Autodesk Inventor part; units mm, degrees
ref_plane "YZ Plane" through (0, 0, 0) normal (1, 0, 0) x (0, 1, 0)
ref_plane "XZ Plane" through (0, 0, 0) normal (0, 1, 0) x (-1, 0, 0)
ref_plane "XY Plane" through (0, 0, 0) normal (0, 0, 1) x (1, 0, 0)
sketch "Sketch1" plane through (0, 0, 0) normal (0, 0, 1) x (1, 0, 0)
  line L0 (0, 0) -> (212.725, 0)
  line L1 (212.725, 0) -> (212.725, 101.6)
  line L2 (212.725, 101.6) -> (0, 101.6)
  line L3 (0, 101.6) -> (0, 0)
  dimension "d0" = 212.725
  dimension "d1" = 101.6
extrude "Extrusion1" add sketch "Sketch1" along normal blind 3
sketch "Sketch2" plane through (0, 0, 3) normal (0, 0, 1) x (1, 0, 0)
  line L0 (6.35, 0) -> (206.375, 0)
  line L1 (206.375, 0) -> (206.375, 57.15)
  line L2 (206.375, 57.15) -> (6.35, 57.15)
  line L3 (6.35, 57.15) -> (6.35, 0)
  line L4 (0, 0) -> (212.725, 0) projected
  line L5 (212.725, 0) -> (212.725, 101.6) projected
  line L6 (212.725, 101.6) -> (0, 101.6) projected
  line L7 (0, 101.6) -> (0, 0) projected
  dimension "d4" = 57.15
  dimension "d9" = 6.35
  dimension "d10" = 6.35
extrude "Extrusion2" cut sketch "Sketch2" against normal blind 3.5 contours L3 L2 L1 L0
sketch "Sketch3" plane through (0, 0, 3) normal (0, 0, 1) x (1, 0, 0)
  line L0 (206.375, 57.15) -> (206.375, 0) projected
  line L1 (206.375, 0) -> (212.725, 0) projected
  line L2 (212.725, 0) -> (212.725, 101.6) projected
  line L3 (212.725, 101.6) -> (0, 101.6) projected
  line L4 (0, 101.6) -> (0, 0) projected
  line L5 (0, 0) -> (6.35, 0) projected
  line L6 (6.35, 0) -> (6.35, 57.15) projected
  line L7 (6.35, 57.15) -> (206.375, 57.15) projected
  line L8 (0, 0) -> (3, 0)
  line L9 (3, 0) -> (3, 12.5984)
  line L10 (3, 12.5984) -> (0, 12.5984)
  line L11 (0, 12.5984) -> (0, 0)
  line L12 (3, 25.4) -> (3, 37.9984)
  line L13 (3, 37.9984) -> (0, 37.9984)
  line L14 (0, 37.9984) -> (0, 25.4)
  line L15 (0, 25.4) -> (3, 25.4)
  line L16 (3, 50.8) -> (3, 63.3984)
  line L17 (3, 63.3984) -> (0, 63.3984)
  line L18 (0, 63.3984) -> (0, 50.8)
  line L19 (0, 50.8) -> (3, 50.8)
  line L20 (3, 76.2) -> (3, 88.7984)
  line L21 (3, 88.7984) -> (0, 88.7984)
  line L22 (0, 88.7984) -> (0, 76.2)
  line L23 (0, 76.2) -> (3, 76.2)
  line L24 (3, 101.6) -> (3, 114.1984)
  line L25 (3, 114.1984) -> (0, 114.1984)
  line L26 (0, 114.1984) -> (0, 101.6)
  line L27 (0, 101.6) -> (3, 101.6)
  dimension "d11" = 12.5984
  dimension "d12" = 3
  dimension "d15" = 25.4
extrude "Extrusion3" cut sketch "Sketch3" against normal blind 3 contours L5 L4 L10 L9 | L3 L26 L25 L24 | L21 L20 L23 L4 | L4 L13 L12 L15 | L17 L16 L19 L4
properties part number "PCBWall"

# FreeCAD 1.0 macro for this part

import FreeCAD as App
import Part
import Sketcher
from FreeCAD import Vector
Q = App.Units.Quantity

doc = App.newDocument("Part")
params = doc.addObject("Spreadsheet::Sheet", "Params")
for row, (alias, value) in enumerate([
    ("sketch1_height", "4 in"),
    ("sketch1_width", "8.375 in"),
    ("pad1_length", "0.1181102 in"),
    ("sketch2_height", "2.25 in"),
    ("sketch2_width", "7.875 in"),
    ("pocket1_length", "0.1377953 in"),
    ("sketch3_height", "0.496 in"),
    ("pocket2_length", "0.1181102 in"),
], start=1):
    params.set(f"A{row}", alias)
    params.set(f"B{row}", "=" + value)
    params.setAlias(f"B{row}", alias)

body = doc.addObject("PartDesign::Body", "Body")

# Sketch on XY plane
sketch1 = doc.addObject("Sketcher::SketchObject", "Sketch")
body.addObject(sketch1)
sketch1.AttachmentSupport = (doc.XY_Plane, [""])
sketch1.MapMode = "FlatFace"
sketch1.addGeometry([
    Part.LineSegment(Vector(0, 102, 0), Vector(0, 0, 0)),
    Part.LineSegment(Vector(0, 0, 0), Vector(213, 0, 0)),
    Part.LineSegment(Vector(213, 0, 0), Vector(213, 102, 0)),
    Part.LineSegment(Vector(213, 102, 0), Vector(0, 102, 0)),
], False)
sketch1.addConstraint([
    Sketcher.Constraint("Coincident", 0, 2, 1, 1),
    Sketcher.Constraint("Coincident", 1, 2, 2, 1),
    Sketcher.Constraint("Coincident", 2, 2, 3, 1),
    Sketcher.Constraint("Coincident", 3, 2, 0, 1),
    Sketcher.Constraint("Vertical", 0),
    Sketcher.Constraint("Horizontal", 1),
    Sketcher.Constraint("Vertical", 2),
    Sketcher.Constraint("Horizontal", 3),
    Sketcher.Constraint("Coincident", 0, 2, -1, 1),
    Sketcher.Constraint("DistanceY", 0, 2, 0, 1, Q("4 in")),
    Sketcher.Constraint("DistanceX", 1, 1, 1, 2, Q("8.375 in")),
])
sketch1.setExpression("Constraints[9]", "Params.sketch1_height")
sketch1.setExpression("Constraints[10]", "Params.sketch1_width")
pad1 = doc.addObject("PartDesign::Pad", "Pad")
body.addObject(pad1)
pad1.Profile = sketch1
pad1.setExpression("Length", "Params.pad1_length")

# Sketch on XY plane
sketch2 = doc.addObject("Sketcher::SketchObject", "Sketch001")
body.addObject(sketch2)
sketch2.AttachmentSupport = (doc.XY_Plane, [""])
sketch2.MapMode = "FlatFace"
sketch2.AttachmentOffset = App.Placement(Vector(0, 0, 0.1181102 * 25.4), App.Rotation())
sketch2.addGeometry([
    Part.LineSegment(Vector(6, 57, 0), Vector(6, 0, 0)),
    Part.LineSegment(Vector(6, 0, 0), Vector(206, 0, 0)),
    Part.LineSegment(Vector(206, 0, 0), Vector(206, 57, 0)),
    Part.LineSegment(Vector(206, 57, 0), Vector(6, 57, 0)),
], False)
sketch2.addConstraint([
    Sketcher.Constraint("Coincident", 0, 2, 1, 1),
    Sketcher.Constraint("Coincident", 1, 2, 2, 1),
    Sketcher.Constraint("Coincident", 2, 2, 3, 1),
    Sketcher.Constraint("Coincident", 3, 2, 0, 1),
    Sketcher.Constraint("Vertical", 0),
    Sketcher.Constraint("Horizontal", 1),
    Sketcher.Constraint("Vertical", 2),
    Sketcher.Constraint("Horizontal", 3),
    Sketcher.Constraint("PointOnObject", 0, 2, -1),
    Sketcher.Constraint("DistanceY", 0, 2, 0, 1, Q("2.25 in")),
    Sketcher.Constraint("DistanceX", -1, 1, 0, 2, Q("0.25 in")),
    Sketcher.Constraint("DistanceX", 1, 1, 1, 2, Q("7.875 in")),
])
sketch2.setExpression("Constraints[9]", "Params.sketch2_height")
sketch2.setExpression("Constraints[11]", "Params.sketch2_width")
pocket1 = doc.addObject("PartDesign::Pocket", "Pocket")
body.addObject(pocket1)
pocket1.Profile = sketch2
pocket1.setExpression("Length", "Params.pocket1_length")

# Sketch on XY plane
sketch3 = doc.addObject("Sketcher::SketchObject", "Sketch002")
body.addObject(sketch3)
sketch3.AttachmentSupport = (doc.XY_Plane, [""])
sketch3.MapMode = "FlatFace"
sketch3.AttachmentOffset = App.Placement(Vector(0, 0, 0.1181102 * 25.4), App.Rotation())
sketch3.addGeometry([
    Part.LineSegment(Vector(0, 0, 0), Vector(3, 0, 0)),  # 0
    Part.LineSegment(Vector(3, 0, 0), Vector(3, 12.6, 0)),  # 1
    Part.LineSegment(Vector(3, 12.6, 0), Vector(0, 12.6, 0)),  # 2
    Part.LineSegment(Vector(0, 12.6, 0), Vector(0, 0, 0)),  # 3
    Part.LineSegment(Vector(0, 101.6, 0), Vector(3, 101.6, 0)),  # 4
    Part.LineSegment(Vector(3, 101.6, 0), Vector(3, 114.2, 0)),  # 5
    Part.LineSegment(Vector(3, 114.2, 0), Vector(0, 114.2, 0)),  # 6
    Part.LineSegment(Vector(0, 114.2, 0), Vector(0, 101.6, 0)),  # 7
    Part.LineSegment(Vector(3, 88.8, 0), Vector(0, 88.8, 0)),  # 8
    Part.LineSegment(Vector(0, 88.8, 0), Vector(0, 76.2, 0)),  # 9
    Part.LineSegment(Vector(0, 76.2, 0), Vector(3, 76.2, 0)),  # 10
    Part.LineSegment(Vector(3, 76.2, 0), Vector(3, 88.8, 0)),  # 11
    Part.LineSegment(Vector(0, 38, 0), Vector(0, 25.4, 0)),  # 12
    Part.LineSegment(Vector(0, 25.4, 0), Vector(3, 25.4, 0)),  # 13
    Part.LineSegment(Vector(3, 25.4, 0), Vector(3, 38, 0)),  # 14
    Part.LineSegment(Vector(3, 38, 0), Vector(0, 38, 0)),  # 15
    Part.LineSegment(Vector(3, 63.4, 0), Vector(0, 63.4, 0)),  # 16
    Part.LineSegment(Vector(0, 63.4, 0), Vector(0, 50.8, 0)),  # 17
    Part.LineSegment(Vector(0, 50.8, 0), Vector(3, 50.8, 0)),  # 18
    Part.LineSegment(Vector(3, 50.8, 0), Vector(3, 63.4, 0)),  # 19
], False)
sketch3.addConstraint([
    Sketcher.Constraint("Coincident", 0, 2, 1, 1),
    Sketcher.Constraint("Coincident", 1, 2, 2, 1),
    Sketcher.Constraint("Coincident", 2, 2, 3, 1),
    Sketcher.Constraint("Coincident", 3, 2, 0, 1),
    Sketcher.Constraint("Coincident", 4, 2, 5, 1),
    Sketcher.Constraint("Coincident", 5, 2, 6, 1),
    Sketcher.Constraint("Coincident", 6, 2, 7, 1),
    Sketcher.Constraint("Coincident", 7, 2, 4, 1),
    Sketcher.Constraint("Coincident", 8, 2, 9, 1),
    Sketcher.Constraint("Coincident", 9, 2, 10, 1),
    Sketcher.Constraint("Coincident", 10, 2, 11, 1),
    Sketcher.Constraint("Coincident", 11, 2, 8, 1),
    Sketcher.Constraint("Coincident", 12, 2, 13, 1),
    Sketcher.Constraint("Coincident", 13, 2, 14, 1),
    Sketcher.Constraint("Coincident", 14, 2, 15, 1),
    Sketcher.Constraint("Coincident", 15, 2, 12, 1),
    Sketcher.Constraint("Coincident", 16, 2, 17, 1),
    Sketcher.Constraint("Coincident", 17, 2, 18, 1),
    Sketcher.Constraint("Coincident", 18, 2, 19, 1),
    Sketcher.Constraint("Coincident", 19, 2, 16, 1),
    Sketcher.Constraint("Horizontal", 0),
    Sketcher.Constraint("Vertical", 1),
    Sketcher.Constraint("Horizontal", 2),
    Sketcher.Constraint("Vertical", 3),
    Sketcher.Constraint("Horizontal", 4),
    Sketcher.Constraint("Vertical", 5),
    Sketcher.Constraint("Horizontal", 6),
    Sketcher.Constraint("Vertical", 7),
    Sketcher.Constraint("Horizontal", 8),
    Sketcher.Constraint("Vertical", 9),
    Sketcher.Constraint("Horizontal", 10),
    Sketcher.Constraint("Vertical", 11),
    Sketcher.Constraint("Vertical", 12),
    Sketcher.Constraint("Horizontal", 13),
    Sketcher.Constraint("Vertical", 14),
    Sketcher.Constraint("Horizontal", 15),
    Sketcher.Constraint("Horizontal", 16),
    Sketcher.Constraint("Vertical", 17),
    Sketcher.Constraint("Horizontal", 18),
    Sketcher.Constraint("Vertical", 19),
    Sketcher.Constraint("Coincident", 3, 2, -1, 1),
    Sketcher.Constraint("PointOnObject", 6, 2, -2),
    Sketcher.Constraint("PointOnObject", 8, 2, -2),
    Sketcher.Constraint("PointOnObject", 12, 2, -2),
    Sketcher.Constraint("PointOnObject", 16, 2, -2),
    Sketcher.Constraint("Vertical", 1, 2, 4, 2),
    Sketcher.Constraint("Vertical", 5, 2, 10, 2),
    Sketcher.Constraint("Vertical", 11, 2, 13, 2),
    Sketcher.Constraint("Vertical", 14, 2, 18, 2),
    Sketcher.Constraint("Equal", 3, 5),
    Sketcher.Constraint("Equal", 7, 9),
    Sketcher.Constraint("Equal", 11, 12),
    Sketcher.Constraint("Equal", 14, 17),
    Sketcher.Constraint("DistanceY", -1, 1, 12, 2, Q("1 in")),
    Sketcher.Constraint("DistanceY", 8, 2, 6, 2, Q("1 in")),
    Sketcher.Constraint("DistanceY", 16, 2, 8, 2, Q("1 in")),
    Sketcher.Constraint("DistanceY", 15, 2, 16, 2, Q("1 in")),
    Sketcher.Constraint("DistanceY", 1, 1, 1, 2, Q("0.496 in")),
    Sketcher.Constraint("DistanceX", 0, 1, 0, 2, Q("0.1181 in")),
])
sketch3.setExpression("Constraints[57]", "Params.sketch3_height")
pocket2 = doc.addObject("PartDesign::Pocket", "Pocket001")
body.addObject(pocket2)
pocket2.Profile = sketch3
pocket2.setExpression("Length", "Params.pocket2_length")

doc.recompute()
